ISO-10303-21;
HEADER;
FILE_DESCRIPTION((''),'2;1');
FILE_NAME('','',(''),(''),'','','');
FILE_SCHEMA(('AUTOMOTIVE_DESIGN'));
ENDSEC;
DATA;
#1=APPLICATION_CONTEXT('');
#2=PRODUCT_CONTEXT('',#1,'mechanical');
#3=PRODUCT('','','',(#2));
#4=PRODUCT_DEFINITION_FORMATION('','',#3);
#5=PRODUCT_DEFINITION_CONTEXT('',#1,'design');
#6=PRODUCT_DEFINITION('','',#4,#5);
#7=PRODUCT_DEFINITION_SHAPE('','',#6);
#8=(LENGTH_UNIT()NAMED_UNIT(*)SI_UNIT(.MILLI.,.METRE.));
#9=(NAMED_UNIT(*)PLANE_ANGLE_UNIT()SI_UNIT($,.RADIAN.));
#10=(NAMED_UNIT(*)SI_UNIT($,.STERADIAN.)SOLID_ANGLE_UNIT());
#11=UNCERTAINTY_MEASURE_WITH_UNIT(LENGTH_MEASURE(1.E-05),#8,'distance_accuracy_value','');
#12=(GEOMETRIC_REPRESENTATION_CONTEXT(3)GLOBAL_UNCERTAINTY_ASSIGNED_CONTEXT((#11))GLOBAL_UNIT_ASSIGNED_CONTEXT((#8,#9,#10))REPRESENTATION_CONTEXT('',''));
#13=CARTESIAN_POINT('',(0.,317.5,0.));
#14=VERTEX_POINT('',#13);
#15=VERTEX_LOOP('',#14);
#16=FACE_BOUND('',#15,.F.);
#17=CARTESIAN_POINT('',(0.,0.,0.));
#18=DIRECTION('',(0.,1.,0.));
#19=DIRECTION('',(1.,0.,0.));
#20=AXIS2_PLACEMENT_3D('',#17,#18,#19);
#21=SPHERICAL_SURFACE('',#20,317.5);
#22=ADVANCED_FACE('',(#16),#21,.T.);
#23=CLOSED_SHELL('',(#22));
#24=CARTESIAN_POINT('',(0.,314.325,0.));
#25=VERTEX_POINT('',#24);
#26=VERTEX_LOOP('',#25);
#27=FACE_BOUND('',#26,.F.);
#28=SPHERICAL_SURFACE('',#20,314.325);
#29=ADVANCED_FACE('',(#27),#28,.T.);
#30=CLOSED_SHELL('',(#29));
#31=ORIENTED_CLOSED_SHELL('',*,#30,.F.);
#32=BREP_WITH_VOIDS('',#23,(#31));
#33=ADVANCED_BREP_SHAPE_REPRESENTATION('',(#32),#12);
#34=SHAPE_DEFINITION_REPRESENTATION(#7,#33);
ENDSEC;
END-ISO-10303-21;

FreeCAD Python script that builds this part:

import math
import FreeCAD as App
import Part
import Sketcher

V = App.Vector
Q = App.Units.Quantity

doc = App.newDocument("Part")
params = doc.addObject("Spreadsheet::Sheet", "Params")
for row, (alias, value) in enumerate([
    ("sketch1_radius", "12.5 in"),
    ("sketch1_height", "0.125 in"),
    ("revolution_angle", "360 deg"),
], start=1):
    params.set(f"A{row}", alias)
    params.set(f"B{row}", "=" + value)
    params.setAlias(f"B{row}", alias)

body = doc.addObject("PartDesign::Body", "Body")

sketch1 = body.newObject("Sketcher::SketchObject", "Sketch")
sketch1.AttachmentSupport = (doc.getObject("XY_Plane"), [""])
sketch1.MapMode = "FlatFace"
sketch1.addGeometry([
    Part.LineSegment(V(0, -314.325, 0), V(0, -317.5, 0)),
    Part.ArcOfCircle(Part.Circle(V(0, 0, 0), V(0, 0, 1), 317.5), math.radians(-90), math.radians(90)),
    Part.LineSegment(V(0, 317.5, 0), V(0, 314.325, 0)),
    Part.ArcOfCircle(Part.Circle(V(0, 0, 0), V(0, 0, 1), 314.325), math.radians(-90), math.radians(90)),
], False)
sketch1.addConstraint([
    Sketcher.Constraint("Coincident", 0, 2, 1, 1),
    Sketcher.Constraint("Coincident", 1, 2, 2, 1),
    Sketcher.Constraint("Coincident", 2, 2, 3, 2),
    Sketcher.Constraint("Coincident", 3, 1, 0, 1),
    Sketcher.Constraint("Vertical", 0),
    Sketcher.Constraint("Vertical", 2),
    Sketcher.Constraint("Coincident", 1, 3, -1, 1),
    Sketcher.Constraint("Coincident", 3, 3, -1, 1),
    Sketcher.Constraint("PointOnObject", 0, 2, -2),
    Sketcher.Constraint("PointOnObject", 1, 2, -2),
    Sketcher.Constraint("Radius", 1, Q("12.5 in")),
    Sketcher.Constraint("DistanceY", 0, 2, 0, 1, Q("0.125 in")),
])
sketch1.setExpression("Constraints[10]", "Params.sketch1_radius")
sketch1.setExpression("Constraints[11]", "Params.sketch1_height")
revolution = body.newObject("PartDesign::Revolution", "Revolution")
revolution.Profile = sketch1
revolution.ReferenceAxis = (sketch1, ["V_Axis"])
revolution.setExpression("Angle", "Params.revolution_angle")

doc.recompute()
